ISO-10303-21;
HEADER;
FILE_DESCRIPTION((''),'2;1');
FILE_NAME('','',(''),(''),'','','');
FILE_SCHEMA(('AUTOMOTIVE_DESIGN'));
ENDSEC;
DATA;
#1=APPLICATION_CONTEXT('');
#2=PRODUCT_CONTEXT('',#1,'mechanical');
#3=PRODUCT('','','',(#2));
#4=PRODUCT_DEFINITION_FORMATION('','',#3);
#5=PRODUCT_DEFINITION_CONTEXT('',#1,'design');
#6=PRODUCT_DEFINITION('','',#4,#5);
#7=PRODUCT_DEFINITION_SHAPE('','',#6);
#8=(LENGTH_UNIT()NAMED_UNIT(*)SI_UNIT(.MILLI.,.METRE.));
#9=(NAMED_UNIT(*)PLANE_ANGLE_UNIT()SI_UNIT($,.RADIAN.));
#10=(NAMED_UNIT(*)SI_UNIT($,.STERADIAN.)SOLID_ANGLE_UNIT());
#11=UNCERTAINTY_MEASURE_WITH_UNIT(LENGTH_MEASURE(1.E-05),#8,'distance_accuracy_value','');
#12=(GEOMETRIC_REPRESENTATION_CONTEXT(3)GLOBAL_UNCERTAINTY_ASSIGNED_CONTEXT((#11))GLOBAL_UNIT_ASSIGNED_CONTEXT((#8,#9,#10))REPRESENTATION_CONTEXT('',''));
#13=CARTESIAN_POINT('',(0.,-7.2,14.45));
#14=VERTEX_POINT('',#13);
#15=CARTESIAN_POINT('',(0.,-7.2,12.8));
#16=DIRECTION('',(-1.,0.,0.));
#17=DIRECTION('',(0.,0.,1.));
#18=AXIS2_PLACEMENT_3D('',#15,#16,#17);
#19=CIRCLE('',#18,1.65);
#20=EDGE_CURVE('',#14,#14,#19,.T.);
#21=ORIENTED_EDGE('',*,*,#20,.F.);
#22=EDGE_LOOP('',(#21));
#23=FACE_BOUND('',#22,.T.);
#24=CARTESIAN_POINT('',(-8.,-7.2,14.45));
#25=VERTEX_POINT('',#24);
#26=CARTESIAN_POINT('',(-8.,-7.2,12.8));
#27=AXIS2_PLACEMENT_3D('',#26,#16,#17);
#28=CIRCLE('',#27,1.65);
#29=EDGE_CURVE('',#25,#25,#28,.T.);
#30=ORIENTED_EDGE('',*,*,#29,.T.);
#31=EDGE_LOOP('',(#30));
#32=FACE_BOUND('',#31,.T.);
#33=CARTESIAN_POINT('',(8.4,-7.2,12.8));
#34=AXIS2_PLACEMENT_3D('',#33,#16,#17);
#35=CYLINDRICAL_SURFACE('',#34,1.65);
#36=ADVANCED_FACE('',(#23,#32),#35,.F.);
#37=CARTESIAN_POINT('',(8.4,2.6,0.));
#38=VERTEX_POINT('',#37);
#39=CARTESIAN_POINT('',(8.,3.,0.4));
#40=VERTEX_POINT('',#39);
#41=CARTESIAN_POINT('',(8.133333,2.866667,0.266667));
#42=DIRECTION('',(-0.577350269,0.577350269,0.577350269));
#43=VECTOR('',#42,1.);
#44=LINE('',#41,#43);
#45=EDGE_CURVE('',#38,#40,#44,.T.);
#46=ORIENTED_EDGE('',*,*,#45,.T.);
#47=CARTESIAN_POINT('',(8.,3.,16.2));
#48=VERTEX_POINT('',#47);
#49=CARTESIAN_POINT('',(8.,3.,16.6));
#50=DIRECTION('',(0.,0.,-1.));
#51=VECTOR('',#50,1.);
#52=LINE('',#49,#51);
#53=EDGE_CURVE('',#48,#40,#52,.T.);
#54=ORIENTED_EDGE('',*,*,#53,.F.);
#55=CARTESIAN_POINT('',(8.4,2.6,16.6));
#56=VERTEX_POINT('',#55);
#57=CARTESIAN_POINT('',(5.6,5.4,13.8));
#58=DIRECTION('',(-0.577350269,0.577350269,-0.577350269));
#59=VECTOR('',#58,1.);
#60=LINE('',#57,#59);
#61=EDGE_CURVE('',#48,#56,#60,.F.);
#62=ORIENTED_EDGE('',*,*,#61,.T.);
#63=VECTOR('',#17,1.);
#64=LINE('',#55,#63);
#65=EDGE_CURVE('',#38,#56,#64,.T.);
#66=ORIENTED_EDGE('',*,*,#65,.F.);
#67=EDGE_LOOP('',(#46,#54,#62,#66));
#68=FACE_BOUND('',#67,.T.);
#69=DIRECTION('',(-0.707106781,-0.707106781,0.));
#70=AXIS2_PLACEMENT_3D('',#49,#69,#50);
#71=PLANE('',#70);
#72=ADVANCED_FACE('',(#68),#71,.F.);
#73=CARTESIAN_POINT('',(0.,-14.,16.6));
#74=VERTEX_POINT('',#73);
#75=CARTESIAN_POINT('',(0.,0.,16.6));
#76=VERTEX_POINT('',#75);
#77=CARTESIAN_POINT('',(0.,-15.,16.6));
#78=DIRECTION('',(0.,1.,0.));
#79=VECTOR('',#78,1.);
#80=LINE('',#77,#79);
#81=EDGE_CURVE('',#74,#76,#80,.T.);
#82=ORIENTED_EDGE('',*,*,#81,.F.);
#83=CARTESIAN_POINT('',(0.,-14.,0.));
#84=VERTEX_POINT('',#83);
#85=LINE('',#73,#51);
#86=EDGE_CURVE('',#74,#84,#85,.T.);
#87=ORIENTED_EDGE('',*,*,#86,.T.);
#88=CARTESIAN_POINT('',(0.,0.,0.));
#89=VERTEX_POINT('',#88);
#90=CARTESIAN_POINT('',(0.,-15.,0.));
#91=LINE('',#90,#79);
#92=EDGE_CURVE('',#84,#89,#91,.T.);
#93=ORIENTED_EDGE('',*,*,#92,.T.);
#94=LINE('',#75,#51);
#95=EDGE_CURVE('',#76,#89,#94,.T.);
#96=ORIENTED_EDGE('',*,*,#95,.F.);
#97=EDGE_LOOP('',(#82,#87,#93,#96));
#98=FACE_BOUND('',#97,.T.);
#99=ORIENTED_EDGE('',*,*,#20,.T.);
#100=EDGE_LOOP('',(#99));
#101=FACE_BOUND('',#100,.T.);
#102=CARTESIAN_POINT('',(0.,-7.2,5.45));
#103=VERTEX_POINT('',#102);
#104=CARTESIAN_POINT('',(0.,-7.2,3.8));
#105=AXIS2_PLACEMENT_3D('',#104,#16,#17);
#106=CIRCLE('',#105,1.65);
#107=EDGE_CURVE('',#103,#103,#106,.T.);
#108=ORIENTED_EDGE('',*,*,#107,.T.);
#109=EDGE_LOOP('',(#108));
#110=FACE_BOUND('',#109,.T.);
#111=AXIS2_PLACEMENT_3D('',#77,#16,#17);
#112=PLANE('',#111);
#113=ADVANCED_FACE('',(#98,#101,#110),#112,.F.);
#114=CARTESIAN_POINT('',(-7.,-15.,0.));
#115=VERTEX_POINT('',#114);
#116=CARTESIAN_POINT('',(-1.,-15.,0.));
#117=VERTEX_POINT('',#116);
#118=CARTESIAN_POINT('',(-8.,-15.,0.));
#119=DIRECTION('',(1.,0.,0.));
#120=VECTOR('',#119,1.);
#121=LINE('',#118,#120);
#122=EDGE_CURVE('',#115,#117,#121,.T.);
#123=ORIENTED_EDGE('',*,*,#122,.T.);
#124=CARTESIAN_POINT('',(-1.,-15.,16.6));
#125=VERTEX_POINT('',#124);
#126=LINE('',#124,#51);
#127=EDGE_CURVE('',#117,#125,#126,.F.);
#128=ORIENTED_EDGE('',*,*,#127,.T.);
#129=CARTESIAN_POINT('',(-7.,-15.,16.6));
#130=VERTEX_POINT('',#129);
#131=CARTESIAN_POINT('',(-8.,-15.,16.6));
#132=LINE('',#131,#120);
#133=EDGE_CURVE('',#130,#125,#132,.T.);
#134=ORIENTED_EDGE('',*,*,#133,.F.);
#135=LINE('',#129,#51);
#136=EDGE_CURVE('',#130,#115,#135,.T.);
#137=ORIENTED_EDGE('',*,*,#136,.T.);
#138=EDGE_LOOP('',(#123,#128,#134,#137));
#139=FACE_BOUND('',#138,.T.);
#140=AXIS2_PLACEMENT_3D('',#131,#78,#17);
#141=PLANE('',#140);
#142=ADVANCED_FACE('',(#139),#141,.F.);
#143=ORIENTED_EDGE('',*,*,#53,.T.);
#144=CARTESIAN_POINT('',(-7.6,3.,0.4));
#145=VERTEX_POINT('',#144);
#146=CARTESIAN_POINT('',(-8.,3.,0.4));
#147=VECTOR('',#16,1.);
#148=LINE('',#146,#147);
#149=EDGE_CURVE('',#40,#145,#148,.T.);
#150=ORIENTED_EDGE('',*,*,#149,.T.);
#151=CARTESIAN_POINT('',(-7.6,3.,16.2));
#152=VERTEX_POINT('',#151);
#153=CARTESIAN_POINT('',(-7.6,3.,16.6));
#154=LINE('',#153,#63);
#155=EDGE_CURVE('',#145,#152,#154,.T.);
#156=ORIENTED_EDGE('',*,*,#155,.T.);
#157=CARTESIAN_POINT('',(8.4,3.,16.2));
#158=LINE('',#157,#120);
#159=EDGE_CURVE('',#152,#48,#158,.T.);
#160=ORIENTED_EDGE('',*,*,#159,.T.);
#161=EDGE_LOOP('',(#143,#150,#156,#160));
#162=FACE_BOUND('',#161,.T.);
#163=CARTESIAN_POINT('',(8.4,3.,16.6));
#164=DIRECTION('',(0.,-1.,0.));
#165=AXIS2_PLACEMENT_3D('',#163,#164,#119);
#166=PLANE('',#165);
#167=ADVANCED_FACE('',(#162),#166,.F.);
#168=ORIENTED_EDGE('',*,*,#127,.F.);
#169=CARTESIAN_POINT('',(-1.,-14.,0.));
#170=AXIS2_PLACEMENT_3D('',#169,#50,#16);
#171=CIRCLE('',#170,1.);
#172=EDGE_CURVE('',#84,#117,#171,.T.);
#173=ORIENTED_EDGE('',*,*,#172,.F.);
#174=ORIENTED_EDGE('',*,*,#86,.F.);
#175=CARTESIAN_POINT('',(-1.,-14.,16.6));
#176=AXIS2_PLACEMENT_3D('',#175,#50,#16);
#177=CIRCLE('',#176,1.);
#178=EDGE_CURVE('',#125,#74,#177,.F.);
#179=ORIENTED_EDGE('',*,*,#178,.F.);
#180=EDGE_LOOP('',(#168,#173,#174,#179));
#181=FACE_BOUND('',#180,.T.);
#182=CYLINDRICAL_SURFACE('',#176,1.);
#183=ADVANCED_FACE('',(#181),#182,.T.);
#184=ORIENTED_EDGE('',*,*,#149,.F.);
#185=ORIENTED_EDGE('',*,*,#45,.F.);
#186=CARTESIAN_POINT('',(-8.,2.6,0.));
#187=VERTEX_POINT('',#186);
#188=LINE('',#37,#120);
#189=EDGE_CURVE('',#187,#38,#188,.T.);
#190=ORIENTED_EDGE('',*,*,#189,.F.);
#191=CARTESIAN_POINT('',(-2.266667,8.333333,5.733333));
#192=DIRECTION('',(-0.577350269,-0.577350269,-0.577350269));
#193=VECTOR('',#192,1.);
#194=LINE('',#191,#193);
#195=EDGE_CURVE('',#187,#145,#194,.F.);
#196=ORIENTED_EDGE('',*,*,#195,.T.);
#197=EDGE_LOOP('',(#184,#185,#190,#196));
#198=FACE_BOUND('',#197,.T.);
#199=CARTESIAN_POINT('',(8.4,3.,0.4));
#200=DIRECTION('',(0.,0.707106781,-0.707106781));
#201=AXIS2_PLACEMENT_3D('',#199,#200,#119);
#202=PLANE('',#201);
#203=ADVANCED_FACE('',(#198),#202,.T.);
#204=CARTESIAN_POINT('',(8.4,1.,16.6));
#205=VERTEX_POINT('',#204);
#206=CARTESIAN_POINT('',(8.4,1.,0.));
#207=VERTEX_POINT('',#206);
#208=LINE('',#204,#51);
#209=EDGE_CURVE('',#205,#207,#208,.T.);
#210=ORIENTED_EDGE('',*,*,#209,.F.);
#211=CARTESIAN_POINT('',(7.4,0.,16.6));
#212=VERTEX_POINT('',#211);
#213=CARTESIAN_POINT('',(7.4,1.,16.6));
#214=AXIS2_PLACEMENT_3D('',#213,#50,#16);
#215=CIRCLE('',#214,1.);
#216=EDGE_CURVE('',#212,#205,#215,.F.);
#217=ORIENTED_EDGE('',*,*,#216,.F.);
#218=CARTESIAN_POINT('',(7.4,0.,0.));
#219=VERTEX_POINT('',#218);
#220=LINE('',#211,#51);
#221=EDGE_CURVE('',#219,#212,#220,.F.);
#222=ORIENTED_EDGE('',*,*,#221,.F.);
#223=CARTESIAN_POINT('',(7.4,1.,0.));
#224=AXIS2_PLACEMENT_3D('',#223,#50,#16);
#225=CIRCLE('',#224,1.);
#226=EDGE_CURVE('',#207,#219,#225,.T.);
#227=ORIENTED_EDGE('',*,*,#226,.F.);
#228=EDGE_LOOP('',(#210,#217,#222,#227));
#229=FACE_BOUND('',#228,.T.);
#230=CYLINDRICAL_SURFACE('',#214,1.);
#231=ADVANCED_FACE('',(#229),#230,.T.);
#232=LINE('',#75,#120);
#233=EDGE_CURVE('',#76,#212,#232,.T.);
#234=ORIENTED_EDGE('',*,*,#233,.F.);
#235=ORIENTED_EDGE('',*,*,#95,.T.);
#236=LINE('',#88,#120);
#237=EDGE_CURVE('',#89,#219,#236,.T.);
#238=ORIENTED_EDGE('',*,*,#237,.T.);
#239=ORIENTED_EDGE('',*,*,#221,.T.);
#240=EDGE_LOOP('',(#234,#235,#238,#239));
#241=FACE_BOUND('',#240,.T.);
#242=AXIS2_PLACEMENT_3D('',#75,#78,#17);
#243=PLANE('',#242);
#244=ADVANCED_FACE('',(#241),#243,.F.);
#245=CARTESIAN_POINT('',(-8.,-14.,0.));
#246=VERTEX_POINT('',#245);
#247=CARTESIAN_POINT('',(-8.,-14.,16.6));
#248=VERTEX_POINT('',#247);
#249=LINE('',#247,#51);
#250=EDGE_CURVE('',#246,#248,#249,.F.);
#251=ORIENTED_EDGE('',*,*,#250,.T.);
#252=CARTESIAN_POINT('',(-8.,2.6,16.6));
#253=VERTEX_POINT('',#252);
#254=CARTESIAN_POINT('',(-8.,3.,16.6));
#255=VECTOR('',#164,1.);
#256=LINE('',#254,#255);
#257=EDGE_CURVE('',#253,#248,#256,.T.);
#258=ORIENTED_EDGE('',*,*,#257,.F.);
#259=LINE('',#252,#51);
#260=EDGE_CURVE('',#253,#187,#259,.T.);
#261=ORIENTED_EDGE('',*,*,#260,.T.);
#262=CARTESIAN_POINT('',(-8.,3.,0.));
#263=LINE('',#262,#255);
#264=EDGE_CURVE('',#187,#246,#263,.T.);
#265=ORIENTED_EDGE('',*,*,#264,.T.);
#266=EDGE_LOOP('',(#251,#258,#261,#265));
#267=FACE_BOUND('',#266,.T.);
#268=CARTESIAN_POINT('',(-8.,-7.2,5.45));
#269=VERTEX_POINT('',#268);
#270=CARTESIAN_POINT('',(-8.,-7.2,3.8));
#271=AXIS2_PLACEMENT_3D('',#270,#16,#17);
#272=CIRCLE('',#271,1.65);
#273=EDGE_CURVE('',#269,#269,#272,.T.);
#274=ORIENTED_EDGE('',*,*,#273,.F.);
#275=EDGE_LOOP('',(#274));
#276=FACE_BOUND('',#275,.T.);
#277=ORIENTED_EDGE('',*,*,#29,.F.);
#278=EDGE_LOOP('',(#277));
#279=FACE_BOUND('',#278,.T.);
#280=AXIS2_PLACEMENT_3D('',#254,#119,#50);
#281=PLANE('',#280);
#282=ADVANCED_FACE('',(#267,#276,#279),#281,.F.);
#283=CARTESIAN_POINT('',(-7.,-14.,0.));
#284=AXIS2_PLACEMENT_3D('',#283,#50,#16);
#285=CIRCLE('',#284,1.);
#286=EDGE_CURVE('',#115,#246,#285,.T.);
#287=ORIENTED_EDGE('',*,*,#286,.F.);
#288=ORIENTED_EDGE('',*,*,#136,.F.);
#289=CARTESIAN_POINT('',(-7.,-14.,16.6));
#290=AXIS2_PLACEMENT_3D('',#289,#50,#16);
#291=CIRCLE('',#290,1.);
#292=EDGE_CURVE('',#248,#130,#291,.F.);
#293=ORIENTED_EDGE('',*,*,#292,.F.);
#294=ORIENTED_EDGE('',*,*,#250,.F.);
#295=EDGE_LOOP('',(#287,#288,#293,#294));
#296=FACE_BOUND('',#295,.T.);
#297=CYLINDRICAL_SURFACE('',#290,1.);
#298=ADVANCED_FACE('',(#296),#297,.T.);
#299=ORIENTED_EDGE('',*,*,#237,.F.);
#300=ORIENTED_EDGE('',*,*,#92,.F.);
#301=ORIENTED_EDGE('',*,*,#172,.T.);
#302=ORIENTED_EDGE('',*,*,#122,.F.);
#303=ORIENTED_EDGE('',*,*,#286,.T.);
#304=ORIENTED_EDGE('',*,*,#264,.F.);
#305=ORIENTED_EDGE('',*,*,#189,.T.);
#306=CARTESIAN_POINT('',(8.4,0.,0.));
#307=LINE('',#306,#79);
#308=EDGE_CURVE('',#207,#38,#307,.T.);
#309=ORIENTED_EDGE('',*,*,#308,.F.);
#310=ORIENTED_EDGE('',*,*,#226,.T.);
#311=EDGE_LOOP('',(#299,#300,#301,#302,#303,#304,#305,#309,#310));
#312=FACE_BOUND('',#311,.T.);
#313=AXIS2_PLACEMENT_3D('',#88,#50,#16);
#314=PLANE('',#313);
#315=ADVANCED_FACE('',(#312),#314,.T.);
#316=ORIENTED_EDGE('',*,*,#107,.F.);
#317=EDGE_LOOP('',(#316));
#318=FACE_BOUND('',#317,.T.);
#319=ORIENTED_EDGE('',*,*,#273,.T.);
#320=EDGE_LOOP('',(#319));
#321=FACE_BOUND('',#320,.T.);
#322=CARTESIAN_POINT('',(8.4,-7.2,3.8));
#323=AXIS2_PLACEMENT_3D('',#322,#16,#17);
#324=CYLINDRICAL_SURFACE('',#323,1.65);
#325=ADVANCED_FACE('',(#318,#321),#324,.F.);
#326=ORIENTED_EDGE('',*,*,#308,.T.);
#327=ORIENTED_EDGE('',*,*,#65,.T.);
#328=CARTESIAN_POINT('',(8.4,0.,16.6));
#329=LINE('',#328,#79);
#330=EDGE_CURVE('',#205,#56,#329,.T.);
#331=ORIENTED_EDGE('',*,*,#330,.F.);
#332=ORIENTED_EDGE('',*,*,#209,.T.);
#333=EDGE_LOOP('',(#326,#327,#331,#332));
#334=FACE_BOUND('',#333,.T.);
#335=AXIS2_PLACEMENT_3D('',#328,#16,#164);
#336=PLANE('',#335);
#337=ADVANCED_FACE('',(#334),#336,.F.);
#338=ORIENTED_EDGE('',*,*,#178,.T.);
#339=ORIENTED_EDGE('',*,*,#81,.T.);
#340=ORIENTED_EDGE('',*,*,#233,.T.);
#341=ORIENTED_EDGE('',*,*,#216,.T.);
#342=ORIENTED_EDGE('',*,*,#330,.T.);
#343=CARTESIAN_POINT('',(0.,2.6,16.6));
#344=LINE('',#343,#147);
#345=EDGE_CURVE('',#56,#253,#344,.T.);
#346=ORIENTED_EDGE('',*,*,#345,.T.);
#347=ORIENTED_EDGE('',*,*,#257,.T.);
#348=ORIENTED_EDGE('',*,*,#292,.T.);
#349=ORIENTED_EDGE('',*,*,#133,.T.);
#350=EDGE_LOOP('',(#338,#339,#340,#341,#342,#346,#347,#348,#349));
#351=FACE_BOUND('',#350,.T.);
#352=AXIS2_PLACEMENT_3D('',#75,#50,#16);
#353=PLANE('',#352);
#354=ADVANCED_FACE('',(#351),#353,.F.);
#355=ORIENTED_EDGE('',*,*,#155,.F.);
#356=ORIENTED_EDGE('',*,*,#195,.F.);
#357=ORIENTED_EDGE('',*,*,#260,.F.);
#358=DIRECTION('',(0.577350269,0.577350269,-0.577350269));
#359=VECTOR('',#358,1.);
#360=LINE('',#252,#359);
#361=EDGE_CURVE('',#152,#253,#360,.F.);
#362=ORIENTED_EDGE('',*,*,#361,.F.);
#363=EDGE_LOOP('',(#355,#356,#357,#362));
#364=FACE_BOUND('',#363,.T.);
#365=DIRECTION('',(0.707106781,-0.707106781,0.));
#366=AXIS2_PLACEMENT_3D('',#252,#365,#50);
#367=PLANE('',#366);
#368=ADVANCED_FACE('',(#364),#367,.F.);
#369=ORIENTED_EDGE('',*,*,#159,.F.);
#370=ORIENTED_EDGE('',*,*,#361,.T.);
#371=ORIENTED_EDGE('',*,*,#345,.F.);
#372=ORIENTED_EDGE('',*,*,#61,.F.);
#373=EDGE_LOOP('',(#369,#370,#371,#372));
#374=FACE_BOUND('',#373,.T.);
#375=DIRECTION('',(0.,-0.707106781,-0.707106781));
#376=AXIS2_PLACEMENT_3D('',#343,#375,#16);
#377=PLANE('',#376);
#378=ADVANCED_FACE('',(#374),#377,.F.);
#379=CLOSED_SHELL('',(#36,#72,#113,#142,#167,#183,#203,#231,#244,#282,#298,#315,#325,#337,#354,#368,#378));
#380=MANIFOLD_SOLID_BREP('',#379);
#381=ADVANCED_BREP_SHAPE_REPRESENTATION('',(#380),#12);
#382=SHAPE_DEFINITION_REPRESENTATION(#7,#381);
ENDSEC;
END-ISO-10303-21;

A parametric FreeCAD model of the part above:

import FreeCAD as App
import Part
import Sketcher


def edges_at(feature, points):
    """Names of the edges that pass closest to the given points."""
    edges = feature.Shape.Edges
    near = lambda p: min(range(len(edges)), key=lambda i: edges[i].distToShape(Part.Vertex(*p))[0])
    return sorted({f"Edge{near(p) + 1}" for p in points})


def add_polygon(sketch, points):
    """Adds a closed chain of lines whose ends are joined by coincident constraints."""
    first, n = sketch.GeometryCount, len(points)
    for a, b in zip(points, points[1:] + points[:1]):
        sketch.addGeometry(Part.LineSegment(App.Vector(*a, 0), App.Vector(*b, 0)), False)
    for i in range(n):
        sketch.addConstraint(Sketcher.Constraint("Coincident", first + i, 2, first + (i + 1) % n, 1))

doc = App.newDocument("Part")
body = doc.addObject("PartDesign::Body", "Body")

# Sketch on XY plane
sketch1 = body.newObject("Sketcher::SketchObject", "Sketch")
sketch1.AttachmentSupport = (doc.getObject("XY_Plane"), [""])
sketch1.MapMode = "FlatFace"
add_polygon(sketch1, [(0, 0), (8.4, 0), (8.4, 3), (-8, 3), (-8, -15), (0, -15)])  # lines 0-5
sketch1.addConstraint([
    Sketcher.Constraint("Horizontal", 0),
    Sketcher.Constraint("Vertical", 1),
    Sketcher.Constraint("Horizontal", 2),
    Sketcher.Constraint("Vertical", 3),
    Sketcher.Constraint("Horizontal", 4),
    Sketcher.Constraint("Vertical", 5),
    Sketcher.Constraint("Coincident", 5, 2, -1, 1),
    Sketcher.Constraint("DistanceX", 4, 1, 4, 2, 8.0),
    Sketcher.Constraint("DistanceY", 1, 1, 1, 2, 3.0),
    Sketcher.Constraint("DistanceY", 3, 2, 3, 1, 18.0),
    Sketcher.Constraint("DistanceX", 0, 1, 0, 2, 8.4),
])
pad1 = body.newObject("PartDesign::Pad", "Pad")
pad1.Profile = sketch1
pad1.Length = 16.6

# Sketch on YZ plane
sketch2 = body.newObject("Sketcher::SketchObject", "Sketch001")
sketch2.AttachmentSupport = (doc.getObject("YZ_Plane"), [""])
sketch2.MapMode = "FlatFace"
sketch2.AttachmentOffset = App.Placement(App.Vector(0, 0, -8), App.Rotation())
sketch2.addGeometry([
    Part.Circle(App.Vector(-7.2, 3.8, 0), App.Vector(0, 0, 1), 1.6),
    Part.Circle(App.Vector(-7.2, 12.8, 0), App.Vector(0, 0, 1), 1.6),
], False)
sketch2.addConstraint([
    Sketcher.Constraint("Equal", 0, 1),
    Sketcher.Constraint("Vertical", 0, 3, 1, 3),
    Sketcher.Constraint("Diameter", 0, 3.3),
    Sketcher.Constraint("DistanceY", 0, 3, 1, 3, 9.0),
    Sketcher.Constraint("DistanceX", 0, 3, -1, 1, 7.2),
    Sketcher.Constraint("DistanceY", -1, 1, 0, 3, 3.8),
])
pocket1 = body.newObject("PartDesign::Pocket", "Pocket")
pocket1.Profile = sketch2
pocket1.Type = "ThroughAll"
pocket1.Reversed = True
doc.recompute()

chamfer = body.newObject("PartDesign::Chamfer", "Chamfer")
chamfer.Base = (pocket1, edges_at(pocket1, [
    (-8, 3, 8.3),
    (8.4, 3, 8.3),
    (0.2, 3, 16.6),
    (0.2, 3, 0),
]))
chamfer.Size = 0.4
doc.recompute()

fillet = body.newObject("PartDesign::Fillet", "Fillet")
fillet.Base = (chamfer, edges_at(chamfer, [(0, -15, 8.3), (-8, -15, 8.3), (8.4, 0, 8.3)]))
fillet.Radius = 1

doc.recompute()
